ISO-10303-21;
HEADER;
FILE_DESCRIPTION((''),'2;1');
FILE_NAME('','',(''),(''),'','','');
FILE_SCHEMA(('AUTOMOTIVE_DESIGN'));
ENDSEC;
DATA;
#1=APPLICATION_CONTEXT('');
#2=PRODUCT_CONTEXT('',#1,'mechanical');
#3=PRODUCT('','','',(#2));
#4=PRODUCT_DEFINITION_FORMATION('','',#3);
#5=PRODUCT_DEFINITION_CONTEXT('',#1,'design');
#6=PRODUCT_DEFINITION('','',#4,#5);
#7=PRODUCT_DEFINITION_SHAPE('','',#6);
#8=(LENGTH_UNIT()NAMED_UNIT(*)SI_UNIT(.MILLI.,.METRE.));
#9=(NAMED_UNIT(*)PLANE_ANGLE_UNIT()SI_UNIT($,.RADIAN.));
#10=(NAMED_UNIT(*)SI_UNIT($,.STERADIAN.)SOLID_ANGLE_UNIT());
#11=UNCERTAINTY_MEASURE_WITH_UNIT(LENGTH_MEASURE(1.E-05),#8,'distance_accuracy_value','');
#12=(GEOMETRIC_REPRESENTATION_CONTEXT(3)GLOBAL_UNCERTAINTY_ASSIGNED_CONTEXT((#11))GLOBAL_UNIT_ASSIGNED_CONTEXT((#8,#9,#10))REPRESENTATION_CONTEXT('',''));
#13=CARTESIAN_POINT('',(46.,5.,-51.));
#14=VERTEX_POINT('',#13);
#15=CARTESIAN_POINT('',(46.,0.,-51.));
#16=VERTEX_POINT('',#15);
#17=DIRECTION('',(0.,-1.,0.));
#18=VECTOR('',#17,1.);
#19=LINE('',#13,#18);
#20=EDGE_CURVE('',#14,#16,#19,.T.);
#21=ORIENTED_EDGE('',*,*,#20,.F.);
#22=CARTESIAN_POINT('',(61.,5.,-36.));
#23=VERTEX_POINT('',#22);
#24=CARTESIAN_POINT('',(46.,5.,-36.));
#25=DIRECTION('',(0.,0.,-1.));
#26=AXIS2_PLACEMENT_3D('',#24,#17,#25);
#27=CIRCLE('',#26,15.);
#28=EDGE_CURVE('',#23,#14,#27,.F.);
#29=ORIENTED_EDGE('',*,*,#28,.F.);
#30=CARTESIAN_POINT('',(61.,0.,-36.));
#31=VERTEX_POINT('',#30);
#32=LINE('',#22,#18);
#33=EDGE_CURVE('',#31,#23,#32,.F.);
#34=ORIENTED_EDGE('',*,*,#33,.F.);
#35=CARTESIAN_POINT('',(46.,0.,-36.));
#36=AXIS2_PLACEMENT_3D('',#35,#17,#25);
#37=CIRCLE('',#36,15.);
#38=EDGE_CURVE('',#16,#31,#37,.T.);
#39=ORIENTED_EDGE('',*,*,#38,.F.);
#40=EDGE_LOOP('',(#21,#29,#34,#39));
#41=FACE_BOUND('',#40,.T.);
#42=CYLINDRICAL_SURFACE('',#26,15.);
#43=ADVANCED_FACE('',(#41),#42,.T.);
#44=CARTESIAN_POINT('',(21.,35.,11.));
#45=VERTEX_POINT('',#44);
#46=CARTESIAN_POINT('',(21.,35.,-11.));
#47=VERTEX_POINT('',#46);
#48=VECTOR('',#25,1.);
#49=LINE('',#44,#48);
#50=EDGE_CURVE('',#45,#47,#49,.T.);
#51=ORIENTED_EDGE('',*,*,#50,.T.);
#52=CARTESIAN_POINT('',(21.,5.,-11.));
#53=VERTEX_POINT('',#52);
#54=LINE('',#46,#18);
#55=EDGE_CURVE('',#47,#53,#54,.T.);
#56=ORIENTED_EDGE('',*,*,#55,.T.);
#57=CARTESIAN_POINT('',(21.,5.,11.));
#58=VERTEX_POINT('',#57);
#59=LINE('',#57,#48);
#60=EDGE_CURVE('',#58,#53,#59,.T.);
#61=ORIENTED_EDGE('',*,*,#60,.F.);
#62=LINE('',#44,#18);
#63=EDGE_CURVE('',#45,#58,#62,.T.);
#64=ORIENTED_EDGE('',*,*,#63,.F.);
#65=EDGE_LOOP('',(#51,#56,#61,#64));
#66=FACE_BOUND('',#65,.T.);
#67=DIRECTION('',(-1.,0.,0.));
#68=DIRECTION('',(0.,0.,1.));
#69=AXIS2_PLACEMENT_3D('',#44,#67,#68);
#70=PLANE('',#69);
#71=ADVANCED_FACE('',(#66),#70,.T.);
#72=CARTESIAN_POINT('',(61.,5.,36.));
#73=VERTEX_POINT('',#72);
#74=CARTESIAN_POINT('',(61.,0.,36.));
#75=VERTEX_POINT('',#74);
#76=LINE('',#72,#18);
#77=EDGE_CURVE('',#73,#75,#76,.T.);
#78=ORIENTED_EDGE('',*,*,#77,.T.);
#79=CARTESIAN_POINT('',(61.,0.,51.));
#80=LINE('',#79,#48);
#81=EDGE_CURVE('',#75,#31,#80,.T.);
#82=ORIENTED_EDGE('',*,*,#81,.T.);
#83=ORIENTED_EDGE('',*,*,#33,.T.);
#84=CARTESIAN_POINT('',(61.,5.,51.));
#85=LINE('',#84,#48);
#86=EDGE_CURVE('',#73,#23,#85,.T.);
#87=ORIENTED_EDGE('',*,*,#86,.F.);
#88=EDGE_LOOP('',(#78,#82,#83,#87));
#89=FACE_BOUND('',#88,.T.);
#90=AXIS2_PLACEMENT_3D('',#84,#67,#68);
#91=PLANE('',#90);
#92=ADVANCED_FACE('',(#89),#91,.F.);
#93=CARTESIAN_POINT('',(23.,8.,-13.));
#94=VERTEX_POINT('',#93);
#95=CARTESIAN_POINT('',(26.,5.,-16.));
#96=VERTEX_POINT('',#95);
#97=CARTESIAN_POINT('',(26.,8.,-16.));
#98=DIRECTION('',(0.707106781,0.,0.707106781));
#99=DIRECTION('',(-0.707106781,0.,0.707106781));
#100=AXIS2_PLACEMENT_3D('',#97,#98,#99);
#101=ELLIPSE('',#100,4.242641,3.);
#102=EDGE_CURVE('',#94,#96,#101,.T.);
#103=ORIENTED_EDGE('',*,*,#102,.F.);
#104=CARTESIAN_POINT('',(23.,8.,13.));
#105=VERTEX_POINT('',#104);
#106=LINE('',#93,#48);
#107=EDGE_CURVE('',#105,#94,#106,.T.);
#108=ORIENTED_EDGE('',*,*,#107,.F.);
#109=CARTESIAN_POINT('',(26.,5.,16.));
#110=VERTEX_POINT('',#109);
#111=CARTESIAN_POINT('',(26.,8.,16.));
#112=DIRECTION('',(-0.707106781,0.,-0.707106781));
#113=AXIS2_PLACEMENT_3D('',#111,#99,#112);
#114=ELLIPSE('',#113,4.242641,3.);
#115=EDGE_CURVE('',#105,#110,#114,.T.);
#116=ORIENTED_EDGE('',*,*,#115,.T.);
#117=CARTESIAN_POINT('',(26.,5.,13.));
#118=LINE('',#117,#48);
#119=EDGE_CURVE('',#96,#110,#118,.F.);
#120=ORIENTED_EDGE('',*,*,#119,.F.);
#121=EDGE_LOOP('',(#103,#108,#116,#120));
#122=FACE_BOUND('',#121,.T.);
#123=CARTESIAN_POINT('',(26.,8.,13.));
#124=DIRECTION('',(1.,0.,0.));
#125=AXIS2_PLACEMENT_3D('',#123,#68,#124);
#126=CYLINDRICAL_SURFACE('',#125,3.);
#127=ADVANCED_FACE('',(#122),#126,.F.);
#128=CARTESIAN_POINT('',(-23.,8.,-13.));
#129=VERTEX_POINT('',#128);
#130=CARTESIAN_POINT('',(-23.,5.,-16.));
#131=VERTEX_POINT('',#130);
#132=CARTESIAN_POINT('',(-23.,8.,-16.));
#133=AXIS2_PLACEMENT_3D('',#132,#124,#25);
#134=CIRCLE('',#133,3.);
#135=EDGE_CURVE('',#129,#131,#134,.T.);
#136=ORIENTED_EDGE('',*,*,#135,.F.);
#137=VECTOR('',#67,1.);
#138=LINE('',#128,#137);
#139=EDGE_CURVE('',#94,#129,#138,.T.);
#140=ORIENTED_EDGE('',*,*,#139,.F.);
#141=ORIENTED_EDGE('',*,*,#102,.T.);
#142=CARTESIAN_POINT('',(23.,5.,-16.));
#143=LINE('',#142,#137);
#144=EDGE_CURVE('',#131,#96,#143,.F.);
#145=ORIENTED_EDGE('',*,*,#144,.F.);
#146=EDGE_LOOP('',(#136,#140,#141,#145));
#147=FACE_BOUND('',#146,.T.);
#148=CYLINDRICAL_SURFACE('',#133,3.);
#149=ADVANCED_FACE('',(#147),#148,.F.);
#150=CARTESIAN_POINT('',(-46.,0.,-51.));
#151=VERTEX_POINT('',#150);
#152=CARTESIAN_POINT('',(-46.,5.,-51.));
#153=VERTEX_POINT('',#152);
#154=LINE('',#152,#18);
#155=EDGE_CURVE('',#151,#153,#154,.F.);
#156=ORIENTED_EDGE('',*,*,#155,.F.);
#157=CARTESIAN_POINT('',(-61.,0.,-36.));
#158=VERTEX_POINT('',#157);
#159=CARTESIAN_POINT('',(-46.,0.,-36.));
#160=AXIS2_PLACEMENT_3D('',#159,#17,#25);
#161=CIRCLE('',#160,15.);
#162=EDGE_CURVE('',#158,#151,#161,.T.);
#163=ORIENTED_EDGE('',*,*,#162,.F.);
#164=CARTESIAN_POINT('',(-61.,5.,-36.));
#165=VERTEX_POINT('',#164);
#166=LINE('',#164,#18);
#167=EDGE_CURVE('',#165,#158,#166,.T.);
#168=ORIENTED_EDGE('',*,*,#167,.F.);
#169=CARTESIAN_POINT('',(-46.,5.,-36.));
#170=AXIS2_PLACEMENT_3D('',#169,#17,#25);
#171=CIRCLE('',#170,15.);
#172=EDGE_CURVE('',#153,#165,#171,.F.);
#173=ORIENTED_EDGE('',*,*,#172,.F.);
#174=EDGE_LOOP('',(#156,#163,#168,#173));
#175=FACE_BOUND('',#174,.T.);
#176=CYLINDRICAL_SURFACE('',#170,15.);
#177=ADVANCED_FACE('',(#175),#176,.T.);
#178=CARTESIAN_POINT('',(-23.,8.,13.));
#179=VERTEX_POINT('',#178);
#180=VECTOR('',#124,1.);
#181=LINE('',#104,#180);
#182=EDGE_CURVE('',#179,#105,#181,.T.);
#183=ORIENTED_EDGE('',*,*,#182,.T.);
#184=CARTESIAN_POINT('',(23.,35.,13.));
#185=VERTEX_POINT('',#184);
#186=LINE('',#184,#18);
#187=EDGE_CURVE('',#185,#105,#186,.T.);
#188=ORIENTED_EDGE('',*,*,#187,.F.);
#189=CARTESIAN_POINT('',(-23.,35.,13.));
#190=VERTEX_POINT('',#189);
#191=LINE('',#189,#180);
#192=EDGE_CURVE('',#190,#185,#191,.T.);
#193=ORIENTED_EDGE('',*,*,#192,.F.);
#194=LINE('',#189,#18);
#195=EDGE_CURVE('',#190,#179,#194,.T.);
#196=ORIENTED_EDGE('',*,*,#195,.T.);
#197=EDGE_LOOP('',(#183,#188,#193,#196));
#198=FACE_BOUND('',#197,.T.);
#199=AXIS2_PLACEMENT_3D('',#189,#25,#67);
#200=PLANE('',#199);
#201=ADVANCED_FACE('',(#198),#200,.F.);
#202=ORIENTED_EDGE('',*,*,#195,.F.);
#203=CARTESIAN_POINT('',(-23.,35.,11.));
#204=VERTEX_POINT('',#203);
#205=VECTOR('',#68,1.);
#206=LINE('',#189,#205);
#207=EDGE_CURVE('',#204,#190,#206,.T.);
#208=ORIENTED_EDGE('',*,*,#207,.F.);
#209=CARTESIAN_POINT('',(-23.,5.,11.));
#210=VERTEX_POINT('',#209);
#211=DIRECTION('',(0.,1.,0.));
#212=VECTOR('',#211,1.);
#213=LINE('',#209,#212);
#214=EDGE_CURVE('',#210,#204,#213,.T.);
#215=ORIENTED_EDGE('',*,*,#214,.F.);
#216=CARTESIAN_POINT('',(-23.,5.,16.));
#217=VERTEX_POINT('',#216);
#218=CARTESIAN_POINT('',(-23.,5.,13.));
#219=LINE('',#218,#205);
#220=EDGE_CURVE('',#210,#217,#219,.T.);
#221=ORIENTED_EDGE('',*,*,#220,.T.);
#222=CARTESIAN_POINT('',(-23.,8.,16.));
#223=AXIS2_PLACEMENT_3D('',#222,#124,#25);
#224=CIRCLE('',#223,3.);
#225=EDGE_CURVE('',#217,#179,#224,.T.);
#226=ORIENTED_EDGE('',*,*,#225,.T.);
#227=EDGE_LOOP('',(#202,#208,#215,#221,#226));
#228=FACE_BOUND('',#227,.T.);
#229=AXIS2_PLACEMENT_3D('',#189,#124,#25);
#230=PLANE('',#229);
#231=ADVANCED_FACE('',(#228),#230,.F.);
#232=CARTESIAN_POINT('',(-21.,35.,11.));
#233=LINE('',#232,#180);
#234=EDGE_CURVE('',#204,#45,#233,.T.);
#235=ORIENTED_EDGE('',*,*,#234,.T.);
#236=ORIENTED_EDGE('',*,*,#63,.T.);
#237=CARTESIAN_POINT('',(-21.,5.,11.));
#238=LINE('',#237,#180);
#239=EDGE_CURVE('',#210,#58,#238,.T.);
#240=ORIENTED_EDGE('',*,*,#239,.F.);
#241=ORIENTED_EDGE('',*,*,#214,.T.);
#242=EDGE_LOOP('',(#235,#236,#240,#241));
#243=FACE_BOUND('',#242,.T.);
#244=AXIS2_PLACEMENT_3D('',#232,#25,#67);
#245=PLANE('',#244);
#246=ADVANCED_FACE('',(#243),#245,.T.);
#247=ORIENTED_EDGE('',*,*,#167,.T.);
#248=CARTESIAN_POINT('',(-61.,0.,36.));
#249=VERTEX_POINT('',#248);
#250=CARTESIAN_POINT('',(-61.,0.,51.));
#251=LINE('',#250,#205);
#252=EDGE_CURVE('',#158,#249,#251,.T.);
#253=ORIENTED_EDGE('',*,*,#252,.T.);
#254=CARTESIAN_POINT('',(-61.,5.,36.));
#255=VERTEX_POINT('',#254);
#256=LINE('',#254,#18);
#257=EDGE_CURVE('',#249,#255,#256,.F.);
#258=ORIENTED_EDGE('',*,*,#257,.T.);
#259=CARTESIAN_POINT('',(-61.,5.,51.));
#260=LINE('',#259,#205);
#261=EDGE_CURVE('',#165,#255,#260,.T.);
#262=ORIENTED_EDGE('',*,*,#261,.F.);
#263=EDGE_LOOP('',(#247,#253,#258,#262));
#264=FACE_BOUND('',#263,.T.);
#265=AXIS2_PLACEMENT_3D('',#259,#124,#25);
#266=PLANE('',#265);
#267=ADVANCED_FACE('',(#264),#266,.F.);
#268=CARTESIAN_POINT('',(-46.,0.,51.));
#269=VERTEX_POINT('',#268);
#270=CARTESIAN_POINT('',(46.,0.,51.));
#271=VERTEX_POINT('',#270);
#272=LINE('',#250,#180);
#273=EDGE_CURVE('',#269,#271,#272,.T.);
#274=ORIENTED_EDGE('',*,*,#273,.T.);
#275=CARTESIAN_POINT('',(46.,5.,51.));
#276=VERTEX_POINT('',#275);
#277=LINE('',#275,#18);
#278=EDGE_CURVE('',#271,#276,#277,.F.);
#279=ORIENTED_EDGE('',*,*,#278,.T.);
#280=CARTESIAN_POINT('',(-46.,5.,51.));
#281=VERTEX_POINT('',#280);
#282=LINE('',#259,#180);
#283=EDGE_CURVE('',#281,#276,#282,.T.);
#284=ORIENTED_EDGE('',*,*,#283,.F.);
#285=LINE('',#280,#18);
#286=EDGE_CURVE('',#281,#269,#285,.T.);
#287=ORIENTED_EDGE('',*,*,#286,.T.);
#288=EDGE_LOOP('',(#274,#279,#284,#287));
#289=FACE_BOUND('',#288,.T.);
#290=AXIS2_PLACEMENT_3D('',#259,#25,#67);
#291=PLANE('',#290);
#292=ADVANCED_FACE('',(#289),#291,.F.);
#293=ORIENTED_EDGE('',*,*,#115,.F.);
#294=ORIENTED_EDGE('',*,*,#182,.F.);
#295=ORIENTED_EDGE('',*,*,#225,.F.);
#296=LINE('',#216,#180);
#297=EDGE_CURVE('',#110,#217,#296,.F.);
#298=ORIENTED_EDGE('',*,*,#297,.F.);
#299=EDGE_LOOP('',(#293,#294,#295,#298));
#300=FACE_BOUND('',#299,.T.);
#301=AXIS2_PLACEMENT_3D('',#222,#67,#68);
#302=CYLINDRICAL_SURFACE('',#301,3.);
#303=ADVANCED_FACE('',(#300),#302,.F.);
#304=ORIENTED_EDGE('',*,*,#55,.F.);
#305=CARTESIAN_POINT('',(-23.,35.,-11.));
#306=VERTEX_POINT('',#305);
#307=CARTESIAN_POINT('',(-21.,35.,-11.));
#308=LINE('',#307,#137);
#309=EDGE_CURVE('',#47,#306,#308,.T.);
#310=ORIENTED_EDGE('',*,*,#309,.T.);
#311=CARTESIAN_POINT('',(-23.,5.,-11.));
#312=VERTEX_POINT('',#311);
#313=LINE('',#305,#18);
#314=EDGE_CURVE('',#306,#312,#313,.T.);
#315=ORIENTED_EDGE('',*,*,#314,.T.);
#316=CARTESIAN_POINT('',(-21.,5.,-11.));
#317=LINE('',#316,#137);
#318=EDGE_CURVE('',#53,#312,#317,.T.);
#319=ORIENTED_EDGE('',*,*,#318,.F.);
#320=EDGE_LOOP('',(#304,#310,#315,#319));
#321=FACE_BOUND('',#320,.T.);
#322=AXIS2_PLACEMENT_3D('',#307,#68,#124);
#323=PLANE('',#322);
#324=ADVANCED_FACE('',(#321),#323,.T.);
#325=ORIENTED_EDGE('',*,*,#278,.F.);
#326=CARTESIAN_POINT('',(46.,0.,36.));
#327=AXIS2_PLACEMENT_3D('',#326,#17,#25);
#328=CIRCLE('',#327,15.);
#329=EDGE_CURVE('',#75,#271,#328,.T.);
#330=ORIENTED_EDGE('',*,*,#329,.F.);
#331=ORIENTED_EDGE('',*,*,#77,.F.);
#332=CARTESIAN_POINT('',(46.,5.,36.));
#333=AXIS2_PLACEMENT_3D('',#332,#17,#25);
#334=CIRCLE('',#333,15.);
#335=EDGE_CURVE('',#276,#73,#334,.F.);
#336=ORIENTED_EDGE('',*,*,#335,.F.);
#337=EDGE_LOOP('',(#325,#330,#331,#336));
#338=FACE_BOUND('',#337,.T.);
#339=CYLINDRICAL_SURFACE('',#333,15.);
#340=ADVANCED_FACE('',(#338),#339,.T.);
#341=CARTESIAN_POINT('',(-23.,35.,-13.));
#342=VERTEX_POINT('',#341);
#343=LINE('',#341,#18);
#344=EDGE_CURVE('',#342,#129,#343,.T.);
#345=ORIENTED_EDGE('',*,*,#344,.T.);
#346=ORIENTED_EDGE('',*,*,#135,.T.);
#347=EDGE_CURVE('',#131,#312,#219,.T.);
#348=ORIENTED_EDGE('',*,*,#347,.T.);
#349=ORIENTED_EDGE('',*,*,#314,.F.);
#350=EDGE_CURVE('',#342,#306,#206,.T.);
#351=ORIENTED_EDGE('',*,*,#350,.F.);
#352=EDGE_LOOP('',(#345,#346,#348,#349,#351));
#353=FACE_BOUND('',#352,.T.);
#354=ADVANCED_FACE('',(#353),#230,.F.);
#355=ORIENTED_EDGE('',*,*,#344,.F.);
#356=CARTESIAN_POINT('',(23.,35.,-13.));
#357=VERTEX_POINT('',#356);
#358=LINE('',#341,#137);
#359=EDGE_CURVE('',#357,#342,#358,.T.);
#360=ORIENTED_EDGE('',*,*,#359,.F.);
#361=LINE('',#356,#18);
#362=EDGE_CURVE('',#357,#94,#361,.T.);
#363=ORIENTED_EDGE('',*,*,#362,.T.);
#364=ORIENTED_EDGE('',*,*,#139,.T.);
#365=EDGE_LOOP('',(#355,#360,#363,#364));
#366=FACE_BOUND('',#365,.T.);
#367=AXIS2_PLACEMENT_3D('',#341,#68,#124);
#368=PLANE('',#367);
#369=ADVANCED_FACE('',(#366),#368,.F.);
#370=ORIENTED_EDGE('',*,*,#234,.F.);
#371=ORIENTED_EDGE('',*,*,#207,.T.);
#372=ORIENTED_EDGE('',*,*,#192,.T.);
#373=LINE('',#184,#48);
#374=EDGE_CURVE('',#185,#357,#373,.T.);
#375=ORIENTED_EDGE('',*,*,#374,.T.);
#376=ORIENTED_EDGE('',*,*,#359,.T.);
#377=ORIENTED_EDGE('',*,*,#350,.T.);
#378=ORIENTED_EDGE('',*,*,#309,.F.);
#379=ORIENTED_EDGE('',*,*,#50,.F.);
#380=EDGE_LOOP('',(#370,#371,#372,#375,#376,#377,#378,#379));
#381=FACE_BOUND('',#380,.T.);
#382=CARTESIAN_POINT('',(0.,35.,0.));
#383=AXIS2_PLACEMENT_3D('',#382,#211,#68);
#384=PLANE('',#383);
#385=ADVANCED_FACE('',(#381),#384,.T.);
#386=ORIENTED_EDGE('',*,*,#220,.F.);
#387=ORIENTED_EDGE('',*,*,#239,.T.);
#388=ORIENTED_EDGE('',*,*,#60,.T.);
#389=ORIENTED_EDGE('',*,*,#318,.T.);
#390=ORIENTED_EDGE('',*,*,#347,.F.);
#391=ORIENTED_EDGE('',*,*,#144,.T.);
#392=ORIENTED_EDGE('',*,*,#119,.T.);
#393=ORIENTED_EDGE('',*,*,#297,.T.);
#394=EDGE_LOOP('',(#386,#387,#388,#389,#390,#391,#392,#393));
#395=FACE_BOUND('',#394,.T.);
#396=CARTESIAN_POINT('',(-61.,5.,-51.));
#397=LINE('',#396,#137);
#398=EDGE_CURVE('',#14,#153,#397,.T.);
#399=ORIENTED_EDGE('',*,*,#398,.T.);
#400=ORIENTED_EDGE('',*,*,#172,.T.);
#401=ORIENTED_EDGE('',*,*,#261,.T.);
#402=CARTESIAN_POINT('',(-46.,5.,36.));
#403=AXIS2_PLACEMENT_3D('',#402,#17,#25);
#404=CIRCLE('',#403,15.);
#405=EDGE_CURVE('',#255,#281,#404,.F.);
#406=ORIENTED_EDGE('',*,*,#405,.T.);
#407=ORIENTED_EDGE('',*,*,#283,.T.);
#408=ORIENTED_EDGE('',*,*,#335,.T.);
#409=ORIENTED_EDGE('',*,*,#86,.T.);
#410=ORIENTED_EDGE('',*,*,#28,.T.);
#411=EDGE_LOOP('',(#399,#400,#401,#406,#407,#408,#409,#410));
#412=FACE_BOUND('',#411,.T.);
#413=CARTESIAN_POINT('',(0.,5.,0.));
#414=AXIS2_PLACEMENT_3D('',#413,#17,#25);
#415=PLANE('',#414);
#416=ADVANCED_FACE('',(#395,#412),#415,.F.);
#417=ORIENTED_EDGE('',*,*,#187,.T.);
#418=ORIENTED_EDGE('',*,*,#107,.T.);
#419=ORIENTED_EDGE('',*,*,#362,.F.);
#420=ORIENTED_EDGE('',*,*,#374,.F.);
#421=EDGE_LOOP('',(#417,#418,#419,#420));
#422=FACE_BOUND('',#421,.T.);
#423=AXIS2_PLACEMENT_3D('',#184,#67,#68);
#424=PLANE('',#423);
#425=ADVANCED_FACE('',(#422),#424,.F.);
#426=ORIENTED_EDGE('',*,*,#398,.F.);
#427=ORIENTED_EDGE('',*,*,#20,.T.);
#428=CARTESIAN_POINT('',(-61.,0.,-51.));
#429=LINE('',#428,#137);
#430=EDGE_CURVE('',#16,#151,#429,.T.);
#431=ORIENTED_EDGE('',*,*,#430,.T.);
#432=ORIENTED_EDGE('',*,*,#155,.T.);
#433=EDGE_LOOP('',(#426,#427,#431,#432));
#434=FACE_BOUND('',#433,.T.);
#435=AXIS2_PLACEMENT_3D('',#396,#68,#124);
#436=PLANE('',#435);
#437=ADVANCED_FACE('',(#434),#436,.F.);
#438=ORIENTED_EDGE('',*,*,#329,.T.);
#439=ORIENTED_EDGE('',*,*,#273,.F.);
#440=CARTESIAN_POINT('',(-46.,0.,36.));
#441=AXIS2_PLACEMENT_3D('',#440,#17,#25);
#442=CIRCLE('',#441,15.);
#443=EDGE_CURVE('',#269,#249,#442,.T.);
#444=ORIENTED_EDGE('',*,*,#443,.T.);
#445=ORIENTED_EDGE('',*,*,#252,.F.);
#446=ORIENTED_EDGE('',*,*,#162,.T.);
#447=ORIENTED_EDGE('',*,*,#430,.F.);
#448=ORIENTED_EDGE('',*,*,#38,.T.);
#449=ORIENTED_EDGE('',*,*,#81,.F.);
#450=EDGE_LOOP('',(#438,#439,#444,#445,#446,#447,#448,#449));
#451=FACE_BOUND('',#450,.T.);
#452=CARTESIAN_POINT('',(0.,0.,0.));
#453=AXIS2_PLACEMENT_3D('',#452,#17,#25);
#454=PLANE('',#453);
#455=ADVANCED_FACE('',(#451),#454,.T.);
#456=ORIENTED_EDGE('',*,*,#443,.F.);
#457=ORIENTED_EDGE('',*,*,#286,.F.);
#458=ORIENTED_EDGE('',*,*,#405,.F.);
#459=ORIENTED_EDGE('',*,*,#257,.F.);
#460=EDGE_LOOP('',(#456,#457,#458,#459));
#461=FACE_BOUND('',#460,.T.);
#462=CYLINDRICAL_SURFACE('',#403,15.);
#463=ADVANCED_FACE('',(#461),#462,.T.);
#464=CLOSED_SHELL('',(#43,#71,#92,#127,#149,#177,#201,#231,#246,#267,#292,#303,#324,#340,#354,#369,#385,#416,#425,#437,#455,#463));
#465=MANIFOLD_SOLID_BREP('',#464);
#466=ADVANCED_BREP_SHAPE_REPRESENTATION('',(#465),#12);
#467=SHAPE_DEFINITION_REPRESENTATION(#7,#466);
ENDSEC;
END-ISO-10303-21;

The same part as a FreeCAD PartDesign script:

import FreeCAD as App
import Part
import Sketcher


def edges_at(feature, points):
    """Names of the edges that pass closest to the given points."""
    edges = feature.Shape.Edges
    near = lambda p: min(range(len(edges)), key=lambda i: edges[i].distToShape(Part.Vertex(*p))[0])
    return sorted({f"Edge{near(p) + 1}" for p in points})


def add_polygon(sketch, points):
    """Adds a closed chain of lines whose ends are joined by coincident constraints."""
    first, n = sketch.GeometryCount, len(points)
    for a, b in zip(points, points[1:] + points[:1]):
        sketch.addGeometry(Part.LineSegment(App.Vector(*a, 0), App.Vector(*b, 0)), False)
    for i in range(n):
        sketch.addConstraint(Sketcher.Constraint("Coincident", first + i, 2, first + (i + 1) % n, 1))

doc = App.newDocument("Part")
body = doc.addObject("PartDesign::Body", "Body")

sketch1 = body.newObject("Sketcher::SketchObject", "Sketch")
sketch1.AttachmentSupport = (doc.getObject("XZ_Plane"), [""])
sketch1.MapMode = "FlatFace"
add_polygon(sketch1, [(-61, -51), (-61, 51), (61, 51), (61, -51)])
sketch1.addConstraint(Sketcher.Constraint("Vertical", 0))
sketch1.addConstraint(Sketcher.Constraint("Horizontal", 1))
sketch1.addConstraint(Sketcher.Constraint("Vertical", 2))
sketch1.addConstraint(Sketcher.Constraint("Horizontal", 3))
sketch1.addConstraint(Sketcher.Constraint("Symmetric", 0, 2, 2, 2, -1, 1))
sketch1.addConstraint(Sketcher.Constraint("DistanceX", 1, 1, 1, 2, 122.0))
sketch1.addConstraint(Sketcher.Constraint("DistanceY", 0, 1, 0, 2, 102.0))
pad1 = body.newObject("PartDesign::Pad", "Pad")
pad1.Profile = sketch1
pad1.Length = 5
pad1.Reversed = True

sketch2 = body.newObject("Sketcher::SketchObject", "Sketch001")
sketch2.AttachmentSupport = (doc.getObject("XZ_Plane"), [""])
sketch2.MapMode = "FlatFace"
sketch2.AttachmentOffset = App.Placement(App.Vector(0, 0, -5), App.Rotation())
add_polygon(sketch2, [(-23, -13), (-23, 13), (23, 13), (23, -13)])
add_polygon(sketch2, [(21, 11), (-21, 11), (-21, -11), (21, -11)])
sketch2.addConstraint(Sketcher.Constraint("Vertical", 0))
sketch2.addConstraint(Sketcher.Constraint("Horizontal", 1))
sketch2.addConstraint(Sketcher.Constraint("Vertical", 2))
sketch2.addConstraint(Sketcher.Constraint("Horizontal", 3))
sketch2.addConstraint(Sketcher.Constraint("Horizontal", 4))
sketch2.addConstraint(Sketcher.Constraint("Vertical", 5))
sketch2.addConstraint(Sketcher.Constraint("Horizontal", 6))
sketch2.addConstraint(Sketcher.Constraint("Vertical", 7))
sketch2.addConstraint(Sketcher.Constraint("Symmetric", 0, 2, 2, 2, -1, 1))
sketch2.addConstraint(Sketcher.Constraint("Symmetric", 4, 2, 6, 2, -1, 1))
sketch2.addConstraint(Sketcher.Constraint("DistanceX", 1, 1, 1, 2, 46.0))
sketch2.addConstraint(Sketcher.Constraint("DistanceX", 4, 2, 4, 1, 42.0))
sketch2.addConstraint(Sketcher.Constraint("DistanceY", 0, 1, 0, 2, 26.0))
sketch2.addConstraint(Sketcher.Constraint("DistanceY", 5, 2, 5, 1, 22.0))
pad2 = body.newObject("PartDesign::Pad", "Pad001")
pad2.Profile = sketch2
pad2.Length = 30
pad2.Reversed = True

sketch3 = body.newObject("Sketcher::SketchObject", "Sketch002")
sketch3.AttachmentSupport = (doc.getObject("YZ_Plane"), [""])
sketch3.MapMode = "FlatFace"
sketch3.AttachmentOffset = App.Placement(App.Vector(0, 0, -23), App.Rotation())
add_polygon(sketch3, [(35, -11), (5, -11), (5, 11), (35, 11)])
sketch3.addConstraint(Sketcher.Constraint("Horizontal", 0))
sketch3.addConstraint(Sketcher.Constraint("Vertical", 1))
sketch3.addConstraint(Sketcher.Constraint("Horizontal", 2))
sketch3.addConstraint(Sketcher.Constraint("Vertical", 3))
sketch3.addConstraint(Sketcher.Constraint("DistanceX", 0, 2, 0, 1, 30.0))
sketch3.addConstraint(Sketcher.Constraint("DistanceY", 1, 1, 1, 2, 22.0))
sketch3.addConstraint(Sketcher.Constraint("DistanceX", -1, 1, 0, 2, 5.0))
sketch3.addConstraint(Sketcher.Constraint("DistanceY", 0, 2, -1, 1, 11.0))
pocket1 = body.newObject("PartDesign::Pocket", "Pocket")
pocket1.Profile = sketch3
pocket1.Length = 2
pocket1.Reversed = True
doc.recompute()

fillet = body.newObject("PartDesign::Fillet", "Fillet")
fillet.Base = (pocket1, edges_at(pocket1, [(0, 5, 13), (23, 5, 0), (0, 5, -13)]))
fillet.Radius = 3
doc.recompute()

fillet2 = body.newObject("PartDesign::Fillet", "Fillet001")
fillet2.Base = (fillet, edges_at(fillet, [
    (-61, 2.5, -51),
    (61, 2.5, -51),
    (61, 2.5, 51),
    (-61, 2.5, 51),
]))
fillet2.Radius = 15

doc.recompute()
